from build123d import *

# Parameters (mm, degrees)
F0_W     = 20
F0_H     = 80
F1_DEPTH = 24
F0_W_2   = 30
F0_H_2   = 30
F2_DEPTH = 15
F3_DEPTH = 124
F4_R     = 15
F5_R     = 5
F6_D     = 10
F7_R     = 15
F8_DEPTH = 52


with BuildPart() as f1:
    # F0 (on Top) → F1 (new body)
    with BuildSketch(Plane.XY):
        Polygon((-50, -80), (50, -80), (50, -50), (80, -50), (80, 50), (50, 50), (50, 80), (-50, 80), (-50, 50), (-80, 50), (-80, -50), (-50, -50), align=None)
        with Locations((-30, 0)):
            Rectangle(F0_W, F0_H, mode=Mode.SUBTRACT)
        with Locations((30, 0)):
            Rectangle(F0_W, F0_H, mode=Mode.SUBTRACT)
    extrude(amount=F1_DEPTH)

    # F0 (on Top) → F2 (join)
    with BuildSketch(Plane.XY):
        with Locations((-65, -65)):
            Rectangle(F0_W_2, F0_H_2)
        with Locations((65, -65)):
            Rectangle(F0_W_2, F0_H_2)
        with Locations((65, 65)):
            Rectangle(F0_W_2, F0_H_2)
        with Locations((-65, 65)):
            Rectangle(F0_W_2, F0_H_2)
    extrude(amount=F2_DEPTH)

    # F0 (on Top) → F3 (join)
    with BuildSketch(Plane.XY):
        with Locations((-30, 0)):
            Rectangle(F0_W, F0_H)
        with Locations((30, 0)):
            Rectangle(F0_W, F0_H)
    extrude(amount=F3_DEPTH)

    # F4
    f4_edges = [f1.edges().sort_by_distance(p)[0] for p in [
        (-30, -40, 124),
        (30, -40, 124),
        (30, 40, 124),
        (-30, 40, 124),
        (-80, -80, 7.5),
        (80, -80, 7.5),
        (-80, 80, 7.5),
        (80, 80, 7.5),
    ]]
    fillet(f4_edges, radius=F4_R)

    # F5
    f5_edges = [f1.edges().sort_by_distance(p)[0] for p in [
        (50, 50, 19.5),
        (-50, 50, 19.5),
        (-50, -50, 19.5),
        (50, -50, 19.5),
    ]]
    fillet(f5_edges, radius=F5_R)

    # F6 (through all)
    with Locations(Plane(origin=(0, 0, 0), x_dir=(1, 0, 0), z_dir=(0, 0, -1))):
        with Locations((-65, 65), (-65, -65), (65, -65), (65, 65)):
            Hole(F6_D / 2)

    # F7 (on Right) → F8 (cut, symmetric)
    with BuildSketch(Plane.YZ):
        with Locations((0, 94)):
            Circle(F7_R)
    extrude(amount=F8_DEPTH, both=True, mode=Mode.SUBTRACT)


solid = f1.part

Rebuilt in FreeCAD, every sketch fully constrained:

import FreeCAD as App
import Part
import Sketcher
from FreeCAD import Vector
Q = App.Units.Quantity


def edges_at(feature, points):
    """Names of the edges that pass closest to the given points."""
    edges = feature.Shape.Edges
    near = lambda p: min(range(len(edges)), key=lambda i: edges[i].distToShape(Part.Vertex(*p))[0])
    return sorted({f"Edge{near(p) + 1}" for p in points})

doc = App.newDocument("Part")
params = doc.addObject("Spreadsheet::Sheet", "Params")
for row, (alias, value) in enumerate([
    ("sketch1_width", "100 mm"),
    ("sketch1_width2", "30 mm"),
    ("sketch1_width3", "20 mm"),
    ("sketch1_height", "80 mm"),
    ("pad1_length", "24 mm"),
    ("sketch2_width", "30 mm"),
    ("pad2_length", "15 mm"),
    ("sketch3_width", "20 mm"),
    ("sketch3_height", "80 mm"),
    ("pad3_length", "124 mm"),
    ("fillet_radius", "15 mm"),
    ("fillet2_radius", "5 mm"),
    ("sketch4_diameter", "10 mm"),
    ("hole_diameter", "10 mm"),
    ("sketch5_diameter", "30 mm"),
    ("pocket1_length", "104 mm"),
], start=1):
    params.set(f"A{row}", alias)
    params.set(f"B{row}", "=" + value)
    params.setAlias(f"B{row}", alias)

body = doc.addObject("PartDesign::Body", "Body")

# Sketch on XY plane
sketch1 = body.newObject("Sketcher::SketchObject", "Sketch")
sketch1.AttachmentSupport = (doc.getObject("XY_Plane"), [""])
sketch1.MapMode = "FlatFace"
sketch1.addGeometry([
    Part.LineSegment(Vector(-50, -80, 0), Vector(50, -80, 0)),  # 0
    Part.LineSegment(Vector(50, -80, 0), Vector(50, -50, 0)),  # 1
    Part.LineSegment(Vector(50, -50, 0), Vector(80, -50, 0)),  # 2
    Part.LineSegment(Vector(80, -50, 0), Vector(80, 50, 0)),  # 3
    Part.LineSegment(Vector(80, 50, 0), Vector(50, 50, 0)),  # 4
    Part.LineSegment(Vector(50, 50, 0), Vector(50, 80, 0)),  # 5
    Part.LineSegment(Vector(50, 80, 0), Vector(-50, 80, 0)),  # 6
    Part.LineSegment(Vector(-50, 80, 0), Vector(-50, 50, 0)),  # 7
    Part.LineSegment(Vector(-50, 50, 0), Vector(-80, 50, 0)),  # 8
    Part.LineSegment(Vector(-80, 50, 0), Vector(-80, -50, 0)),  # 9
    Part.LineSegment(Vector(-80, -50, 0), Vector(-50, -50, 0)),  # 10
    Part.LineSegment(Vector(-50, -50, 0), Vector(-50, -80, 0)),  # 11
    Part.LineSegment(Vector(-20, -40, 0), Vector(-40, -40, 0)),  # 12
    Part.LineSegment(Vector(-40, -40, 0), Vector(-40, 40, 0)),  # 13
    Part.LineSegment(Vector(-40, 40, 0), Vector(-20, 40, 0)),  # 14
    Part.LineSegment(Vector(-20, 40, 0), Vector(-20, -40, 0)),  # 15
    Part.LineSegment(Vector(40, -40, 0), Vector(20, -40, 0)),  # 16
    Part.LineSegment(Vector(20, -40, 0), Vector(20, 40, 0)),  # 17
    Part.LineSegment(Vector(20, 40, 0), Vector(40, 40, 0)),  # 18
    Part.LineSegment(Vector(40, 40, 0), Vector(40, -40, 0)),  # 19
], False)
sketch1.addConstraint([
    Sketcher.Constraint("Coincident", 0, 2, 1, 1),
    Sketcher.Constraint("Coincident", 1, 2, 2, 1),
    Sketcher.Constraint("Coincident", 2, 2, 3, 1),
    Sketcher.Constraint("Coincident", 3, 2, 4, 1),
    Sketcher.Constraint("Coincident", 4, 2, 5, 1),
    Sketcher.Constraint("Coincident", 5, 2, 6, 1),
    Sketcher.Constraint("Coincident", 6, 2, 7, 1),
    Sketcher.Constraint("Coincident", 7, 2, 8, 1),
    Sketcher.Constraint("Coincident", 8, 2, 9, 1),
    Sketcher.Constraint("Coincident", 9, 2, 10, 1),
    Sketcher.Constraint("Coincident", 10, 2, 11, 1),
    Sketcher.Constraint("Coincident", 11, 2, 0, 1),
    Sketcher.Constraint("Coincident", 12, 2, 13, 1),
    Sketcher.Constraint("Coincident", 13, 2, 14, 1),
    Sketcher.Constraint("Coincident", 14, 2, 15, 1),
    Sketcher.Constraint("Coincident", 15, 2, 12, 1),
    Sketcher.Constraint("Coincident", 16, 2, 17, 1),
    Sketcher.Constraint("Coincident", 17, 2, 18, 1),
    Sketcher.Constraint("Coincident", 18, 2, 19, 1),
    Sketcher.Constraint("Coincident", 19, 2, 16, 1),
    Sketcher.Constraint("Horizontal", 0),
    Sketcher.Constraint("Vertical", 1),
    Sketcher.Constraint("Horizontal", 2),
    Sketcher.Constraint("Vertical", 3),
    Sketcher.Constraint("Horizontal", 4),
    Sketcher.Constraint("Vertical", 5),
    Sketcher.Constraint("Horizontal", 6),
    Sketcher.Constraint("Vertical", 7),
    Sketcher.Constraint("Horizontal", 8),
    Sketcher.Constraint("Vertical", 9),
    Sketcher.Constraint("Horizontal", 10),
    Sketcher.Constraint("Vertical", 11),
    Sketcher.Constraint("Horizontal", 12),
    Sketcher.Constraint("Vertical", 13),
    Sketcher.Constraint("Horizontal", 14),
    Sketcher.Constraint("Vertical", 15),
    Sketcher.Constraint("Horizontal", 16),
    Sketcher.Constraint("Vertical", 17),
    Sketcher.Constraint("Horizontal", 18),
    Sketcher.Constraint("Vertical", 19),
    Sketcher.Constraint("Symmetric", 0, 2, 6, 2, -1, 1),
    Sketcher.Constraint("Symmetric", 2, 2, 8, 2, -1, 1),
    Sketcher.Constraint("Symmetric", 4, 2, 10, 2, -1, 1),
    Sketcher.Constraint("Symmetric", 14, 2, 16, 2, -1, 1),
    Sketcher.Constraint("Symmetric", 12, 2, 18, 2, -1, 1),
    Sketcher.Constraint("Symmetric", 4, 2, 7, 2, -2),
    Sketcher.Constraint("Horizontal", 15, 2, 16, 2),
    Sketcher.Constraint("Equal", 10, 1),
    Sketcher.Constraint("Equal", 6, 3),
    Sketcher.Constraint("DistanceX", 0, 1, 0, 2, Q("100 mm")),
    Sketcher.Constraint("DistanceX", 2, 1, 2, 2, Q("30 mm")),
    Sketcher.Constraint("DistanceX", 12, 2, 12, 1, Q("20 mm")),
    Sketcher.Constraint("DistanceY", 13, 1, 13, 2, Q("80 mm")),
    Sketcher.Constraint("DistanceX", 12, 2, -1, 1, Q("40 mm")),
])
sketch1.setExpression("Constraints[49]", "Params.sketch1_width")
sketch1.setExpression("Constraints[50]", "Params.sketch1_width2")
sketch1.setExpression("Constraints[51]", "Params.sketch1_width3")
sketch1.setExpression("Constraints[52]", "Params.sketch1_height")
pad1 = body.newObject("PartDesign::Pad", "Pad")
pad1.Profile = sketch1
pad1.setExpression("Length", "Params.pad1_length")

# Sketch on XY plane
sketch2 = body.newObject("Sketcher::SketchObject", "Sketch001")
sketch2.AttachmentSupport = (doc.getObject("XY_Plane"), [""])
sketch2.MapMode = "FlatFace"
sketch2.addGeometry([
    Part.LineSegment(Vector(-80, -50, 0), Vector(-80, -80, 0)),  # 0
    Part.LineSegment(Vector(-80, -80, 0), Vector(-50, -80, 0)),  # 1
    Part.LineSegment(Vector(-50, -80, 0), Vector(-50, -50, 0)),  # 2
    Part.LineSegment(Vector(-50, -50, 0), Vector(-80, -50, 0)),  # 3
    Part.LineSegment(Vector(50, -50, 0), Vector(50, -80, 0)),  # 4
    Part.LineSegment(Vector(50, -80, 0), Vector(80, -80, 0)),  # 5
    Part.LineSegment(Vector(80, -80, 0), Vector(80, -50, 0)),  # 6
    Part.LineSegment(Vector(80, -50, 0), Vector(50, -50, 0)),  # 7
    Part.LineSegment(Vector(50, 80, 0), Vector(50, 50, 0)),  # 8
    Part.LineSegment(Vector(50, 50, 0), Vector(80, 50, 0)),  # 9
    Part.LineSegment(Vector(80, 50, 0), Vector(80, 80, 0)),  # 10
    Part.LineSegment(Vector(80, 80, 0), Vector(50, 80, 0)),  # 11
    Part.LineSegment(Vector(-80, 80, 0), Vector(-80, 50, 0)),  # 12
    Part.LineSegment(Vector(-80, 50, 0), Vector(-50, 50, 0)),  # 13
    Part.LineSegment(Vector(-50, 50, 0), Vector(-50, 80, 0)),  # 14
    Part.LineSegment(Vector(-50, 80, 0), Vector(-80, 80, 0)),  # 15
], False)
sketch2.addConstraint([
    Sketcher.Constraint("Coincident", 0, 2, 1, 1),
    Sketcher.Constraint("Coincident", 1, 2, 2, 1),
    Sketcher.Constraint("Coincident", 2, 2, 3, 1),
    Sketcher.Constraint("Coincident", 3, 2, 0, 1),
    Sketcher.Constraint("Coincident", 4, 2, 5, 1),
    Sketcher.Constraint("Coincident", 5, 2, 6, 1),
    Sketcher.Constraint("Coincident", 6, 2, 7, 1),
    Sketcher.Constraint("Coincident", 7, 2, 4, 1),
    Sketcher.Constraint("Coincident", 8, 2, 9, 1),
    Sketcher.Constraint("Coincident", 9, 2, 10, 1),
    Sketcher.Constraint("Coincident", 10, 2, 11, 1),
    Sketcher.Constraint("Coincident", 11, 2, 8, 1),
    Sketcher.Constraint("Coincident", 12, 2, 13, 1),
    Sketcher.Constraint("Coincident", 13, 2, 14, 1),
    Sketcher.Constraint("Coincident", 14, 2, 15, 1),
    Sketcher.Constraint("Coincident", 15, 2, 12, 1),
    Sketcher.Constraint("Vertical", 0),
    Sketcher.Constraint("Horizontal", 1),
    Sketcher.Constraint("Vertical", 2),
    Sketcher.Constraint("Horizontal", 3),
    Sketcher.Constraint("Vertical", 4),
    Sketcher.Constraint("Horizontal", 5),
    Sketcher.Constraint("Vertical", 6),
    Sketcher.Constraint("Horizontal", 7),
    Sketcher.Constraint("Vertical", 8),
    Sketcher.Constraint("Horizontal", 9),
    Sketcher.Constraint("Vertical", 10),
    Sketcher.Constraint("Horizontal", 11),
    Sketcher.Constraint("Vertical", 12),
    Sketcher.Constraint("Horizontal", 13),
    Sketcher.Constraint("Vertical", 14),
    Sketcher.Constraint("Horizontal", 15),
    Sketcher.Constraint("Symmetric", 2, 2, 8, 2, -1, 1),
    Sketcher.Constraint("Symmetric", 0, 2, 10, 2, -1, 1),
    Sketcher.Constraint("Symmetric", 6, 2, 12, 2, -1, 1),
    Sketcher.Constraint("Symmetric", 4, 2, 14, 2, -1, 1),
    Sketcher.Constraint("Symmetric", 1, 2, 4, 2, -2),
    Sketcher.Constraint("Symmetric", 3, 2, 6, 2, -2),
    Sketcher.Constraint("Equal", 15, 0),
    Sketcher.Constraint("DistanceX", 1, 1, 1, 2, Q("30 mm")),
    Sketcher.Constraint("DistanceX", 0, 2, -1, 1, Q("80 mm")),
    Sketcher.Constraint("DistanceY", 0, 2, -1, 1, Q("80 mm")),
])
sketch2.setExpression("Constraints[39]", "Params.sketch2_width")
pad2 = body.newObject("PartDesign::Pad", "Pad001")
pad2.Profile = sketch2
pad2.setExpression("Length", "Params.pad2_length")

# Sketch on XY plane
sketch3 = body.newObject("Sketcher::SketchObject", "Sketch002")
sketch3.AttachmentSupport = (doc.getObject("XY_Plane"), [""])
sketch3.MapMode = "FlatFace"
sketch3.addGeometry([
    Part.LineSegment(Vector(-40, 40, 0), Vector(-40, -40, 0)),  # 0
    Part.LineSegment(Vector(-40, -40, 0), Vector(-20, -40, 0)),  # 1
    Part.LineSegment(Vector(-20, -40, 0), Vector(-20, 40, 0)),  # 2
    Part.LineSegment(Vector(-20, 40, 0), Vector(-40, 40, 0)),  # 3
    Part.LineSegment(Vector(20, 40, 0), Vector(20, -40, 0)),  # 4
    Part.LineSegment(Vector(20, -40, 0), Vector(40, -40, 0)),  # 5
    Part.LineSegment(Vector(40, -40, 0), Vector(40, 40, 0)),  # 6
    Part.LineSegment(Vector(40, 40, 0), Vector(20, 40, 0)),  # 7
], False)
sketch3.addConstraint([
    Sketcher.Constraint("Coincident", 0, 2, 1, 1),
    Sketcher.Constraint("Coincident", 1, 2, 2, 1),
    Sketcher.Constraint("Coincident", 2, 2, 3, 1),
    Sketcher.Constraint("Coincident", 3, 2, 0, 1),
    Sketcher.Constraint("Coincident", 4, 2, 5, 1),
    Sketcher.Constraint("Coincident", 5, 2, 6, 1),
    Sketcher.Constraint("Coincident", 6, 2, 7, 1),
    Sketcher.Constraint("Coincident", 7, 2, 4, 1),
    Sketcher.Constraint("Vertical", 0),
    Sketcher.Constraint("Horizontal", 1),
    Sketcher.Constraint("Vertical", 2),
    Sketcher.Constraint("Horizontal", 3),
    Sketcher.Constraint("Vertical", 4),
    Sketcher.Constraint("Horizontal", 5),
    Sketcher.Constraint("Vertical", 6),
    Sketcher.Constraint("Horizontal", 7),
    Sketcher.Constraint("Symmetric", 2, 2, 4, 2, -1, 1),
    Sketcher.Constraint("Symmetric", 0, 2, 6, 2, -1, 1),
    Sketcher.Constraint("Horizontal", 1, 2, 4, 2),
    Sketcher.Constraint("DistanceX", 1, 1, 1, 2, Q("20 mm")),
    Sketcher.Constraint("DistanceY", 0, 2, 0, 1, Q("80 mm")),
    Sketcher.Constraint("DistanceX", 0, 2, -1, 1, Q("40 mm")),
])
sketch3.setExpression("Constraints[19]", "Params.sketch3_width")
sketch3.setExpression("Constraints[20]", "Params.sketch3_height")
pad3 = body.newObject("PartDesign::Pad", "Pad002")
pad3.Profile = sketch3
pad3.setExpression("Length", "Params.pad3_length")
doc.recompute()

fillet = body.newObject("PartDesign::Fillet", "Fillet")
fillet.Base = (pad3, edges_at(pad3, [
    (-30, -40, 124),
    (30, -40, 124),
    (30, 40, 124),
    (-30, 40, 124),
    (-80, -80, 7.5),
    (80, -80, 7.5),
    (-80, 80, 7.5),
    (80, 80, 7.5),
]))
fillet.setExpression("Radius", "Params.fillet_radius")
doc.recompute()

fillet2 = body.newObject("PartDesign::Fillet", "Fillet001")
fillet2.Base = (fillet, edges_at(fillet, [
    (50, 50, 19.5),
    (-50, 50, 19.5),
    (-50, -50, 19.5),
    (50, -50, 19.5),
]))
fillet2.setExpression("Radius", "Params.fillet2_radius")

# Sketch on XY plane
sketch4 = body.newObject("Sketcher::SketchObject", "Sketch003")
sketch4.AttachmentSupport = (doc.getObject("XY_Plane"), [""])
sketch4.MapMode = "FlatFace"
sketch4.addGeometry([
    Part.Circle(Vector(-65, -65, 0), Vector(0, 0, 1), 5),
    Part.Circle(Vector(-65, 65, 0), Vector(0, 0, 1), 5),
    Part.Circle(Vector(65, 65, 0), Vector(0, 0, 1), 5),
    Part.Circle(Vector(65, -65, 0), Vector(0, 0, 1), 5),
], False)
sketch4.addConstraint([
    Sketcher.Constraint("Equal", 0, 1),
    Sketcher.Constraint("Equal", 1, 2),
    Sketcher.Constraint("Equal", 2, 3),
    Sketcher.Constraint("Symmetric", 0, 3, 2, 3, -1, 1),
    Sketcher.Constraint("Symmetric", 1, 3, 3, 3, -1, 1),
    Sketcher.Constraint("Symmetric", 1, 3, 2, 3, -2),
    Sketcher.Constraint("Diameter", 0, Q("10 mm")),
    Sketcher.Constraint("DistanceX", 0, 3, -1, 1, Q("65 mm")),
    Sketcher.Constraint("DistanceY", 0, 3, -1, 1, Q("65 mm")),
])
sketch4.setExpression("Constraints[6]", "Params.sketch4_diameter")
doc.recompute()
hole = body.newObject("PartDesign::Hole", "Hole")
hole.Profile = sketch4
hole.ThreadType = "None"
hole.setExpression("Diameter", "Params.hole_diameter")
hole.DepthType = "ThroughAll"
hole.Reversed = True

# Sketch on YZ plane
sketch5 = body.newObject("Sketcher::SketchObject", "Sketch004")
sketch5.AttachmentSupport = (doc.getObject("YZ_Plane"), [""])
sketch5.MapMode = "FlatFace"
sketch5.addGeometry(Part.Circle(Vector(0, 94, 0), Vector(0, 0, 1), 15), False)
sketch5.addConstraint([
    Sketcher.Constraint("PointOnObject", 0, 3, -2),
    Sketcher.Constraint("Diameter", 0, Q("30 mm")),
    Sketcher.Constraint("DistanceY", -1, 1, 0, 3, Q("94 mm")),
])
sketch5.setExpression("Constraints[1]", "Params.sketch5_diameter")
pocket1 = body.newObject("PartDesign::Pocket", "Pocket")
pocket1.Profile = sketch5
pocket1.setExpression("Length", "Params.pocket1_length")
pocket1.Midplane = True

doc.recompute()
